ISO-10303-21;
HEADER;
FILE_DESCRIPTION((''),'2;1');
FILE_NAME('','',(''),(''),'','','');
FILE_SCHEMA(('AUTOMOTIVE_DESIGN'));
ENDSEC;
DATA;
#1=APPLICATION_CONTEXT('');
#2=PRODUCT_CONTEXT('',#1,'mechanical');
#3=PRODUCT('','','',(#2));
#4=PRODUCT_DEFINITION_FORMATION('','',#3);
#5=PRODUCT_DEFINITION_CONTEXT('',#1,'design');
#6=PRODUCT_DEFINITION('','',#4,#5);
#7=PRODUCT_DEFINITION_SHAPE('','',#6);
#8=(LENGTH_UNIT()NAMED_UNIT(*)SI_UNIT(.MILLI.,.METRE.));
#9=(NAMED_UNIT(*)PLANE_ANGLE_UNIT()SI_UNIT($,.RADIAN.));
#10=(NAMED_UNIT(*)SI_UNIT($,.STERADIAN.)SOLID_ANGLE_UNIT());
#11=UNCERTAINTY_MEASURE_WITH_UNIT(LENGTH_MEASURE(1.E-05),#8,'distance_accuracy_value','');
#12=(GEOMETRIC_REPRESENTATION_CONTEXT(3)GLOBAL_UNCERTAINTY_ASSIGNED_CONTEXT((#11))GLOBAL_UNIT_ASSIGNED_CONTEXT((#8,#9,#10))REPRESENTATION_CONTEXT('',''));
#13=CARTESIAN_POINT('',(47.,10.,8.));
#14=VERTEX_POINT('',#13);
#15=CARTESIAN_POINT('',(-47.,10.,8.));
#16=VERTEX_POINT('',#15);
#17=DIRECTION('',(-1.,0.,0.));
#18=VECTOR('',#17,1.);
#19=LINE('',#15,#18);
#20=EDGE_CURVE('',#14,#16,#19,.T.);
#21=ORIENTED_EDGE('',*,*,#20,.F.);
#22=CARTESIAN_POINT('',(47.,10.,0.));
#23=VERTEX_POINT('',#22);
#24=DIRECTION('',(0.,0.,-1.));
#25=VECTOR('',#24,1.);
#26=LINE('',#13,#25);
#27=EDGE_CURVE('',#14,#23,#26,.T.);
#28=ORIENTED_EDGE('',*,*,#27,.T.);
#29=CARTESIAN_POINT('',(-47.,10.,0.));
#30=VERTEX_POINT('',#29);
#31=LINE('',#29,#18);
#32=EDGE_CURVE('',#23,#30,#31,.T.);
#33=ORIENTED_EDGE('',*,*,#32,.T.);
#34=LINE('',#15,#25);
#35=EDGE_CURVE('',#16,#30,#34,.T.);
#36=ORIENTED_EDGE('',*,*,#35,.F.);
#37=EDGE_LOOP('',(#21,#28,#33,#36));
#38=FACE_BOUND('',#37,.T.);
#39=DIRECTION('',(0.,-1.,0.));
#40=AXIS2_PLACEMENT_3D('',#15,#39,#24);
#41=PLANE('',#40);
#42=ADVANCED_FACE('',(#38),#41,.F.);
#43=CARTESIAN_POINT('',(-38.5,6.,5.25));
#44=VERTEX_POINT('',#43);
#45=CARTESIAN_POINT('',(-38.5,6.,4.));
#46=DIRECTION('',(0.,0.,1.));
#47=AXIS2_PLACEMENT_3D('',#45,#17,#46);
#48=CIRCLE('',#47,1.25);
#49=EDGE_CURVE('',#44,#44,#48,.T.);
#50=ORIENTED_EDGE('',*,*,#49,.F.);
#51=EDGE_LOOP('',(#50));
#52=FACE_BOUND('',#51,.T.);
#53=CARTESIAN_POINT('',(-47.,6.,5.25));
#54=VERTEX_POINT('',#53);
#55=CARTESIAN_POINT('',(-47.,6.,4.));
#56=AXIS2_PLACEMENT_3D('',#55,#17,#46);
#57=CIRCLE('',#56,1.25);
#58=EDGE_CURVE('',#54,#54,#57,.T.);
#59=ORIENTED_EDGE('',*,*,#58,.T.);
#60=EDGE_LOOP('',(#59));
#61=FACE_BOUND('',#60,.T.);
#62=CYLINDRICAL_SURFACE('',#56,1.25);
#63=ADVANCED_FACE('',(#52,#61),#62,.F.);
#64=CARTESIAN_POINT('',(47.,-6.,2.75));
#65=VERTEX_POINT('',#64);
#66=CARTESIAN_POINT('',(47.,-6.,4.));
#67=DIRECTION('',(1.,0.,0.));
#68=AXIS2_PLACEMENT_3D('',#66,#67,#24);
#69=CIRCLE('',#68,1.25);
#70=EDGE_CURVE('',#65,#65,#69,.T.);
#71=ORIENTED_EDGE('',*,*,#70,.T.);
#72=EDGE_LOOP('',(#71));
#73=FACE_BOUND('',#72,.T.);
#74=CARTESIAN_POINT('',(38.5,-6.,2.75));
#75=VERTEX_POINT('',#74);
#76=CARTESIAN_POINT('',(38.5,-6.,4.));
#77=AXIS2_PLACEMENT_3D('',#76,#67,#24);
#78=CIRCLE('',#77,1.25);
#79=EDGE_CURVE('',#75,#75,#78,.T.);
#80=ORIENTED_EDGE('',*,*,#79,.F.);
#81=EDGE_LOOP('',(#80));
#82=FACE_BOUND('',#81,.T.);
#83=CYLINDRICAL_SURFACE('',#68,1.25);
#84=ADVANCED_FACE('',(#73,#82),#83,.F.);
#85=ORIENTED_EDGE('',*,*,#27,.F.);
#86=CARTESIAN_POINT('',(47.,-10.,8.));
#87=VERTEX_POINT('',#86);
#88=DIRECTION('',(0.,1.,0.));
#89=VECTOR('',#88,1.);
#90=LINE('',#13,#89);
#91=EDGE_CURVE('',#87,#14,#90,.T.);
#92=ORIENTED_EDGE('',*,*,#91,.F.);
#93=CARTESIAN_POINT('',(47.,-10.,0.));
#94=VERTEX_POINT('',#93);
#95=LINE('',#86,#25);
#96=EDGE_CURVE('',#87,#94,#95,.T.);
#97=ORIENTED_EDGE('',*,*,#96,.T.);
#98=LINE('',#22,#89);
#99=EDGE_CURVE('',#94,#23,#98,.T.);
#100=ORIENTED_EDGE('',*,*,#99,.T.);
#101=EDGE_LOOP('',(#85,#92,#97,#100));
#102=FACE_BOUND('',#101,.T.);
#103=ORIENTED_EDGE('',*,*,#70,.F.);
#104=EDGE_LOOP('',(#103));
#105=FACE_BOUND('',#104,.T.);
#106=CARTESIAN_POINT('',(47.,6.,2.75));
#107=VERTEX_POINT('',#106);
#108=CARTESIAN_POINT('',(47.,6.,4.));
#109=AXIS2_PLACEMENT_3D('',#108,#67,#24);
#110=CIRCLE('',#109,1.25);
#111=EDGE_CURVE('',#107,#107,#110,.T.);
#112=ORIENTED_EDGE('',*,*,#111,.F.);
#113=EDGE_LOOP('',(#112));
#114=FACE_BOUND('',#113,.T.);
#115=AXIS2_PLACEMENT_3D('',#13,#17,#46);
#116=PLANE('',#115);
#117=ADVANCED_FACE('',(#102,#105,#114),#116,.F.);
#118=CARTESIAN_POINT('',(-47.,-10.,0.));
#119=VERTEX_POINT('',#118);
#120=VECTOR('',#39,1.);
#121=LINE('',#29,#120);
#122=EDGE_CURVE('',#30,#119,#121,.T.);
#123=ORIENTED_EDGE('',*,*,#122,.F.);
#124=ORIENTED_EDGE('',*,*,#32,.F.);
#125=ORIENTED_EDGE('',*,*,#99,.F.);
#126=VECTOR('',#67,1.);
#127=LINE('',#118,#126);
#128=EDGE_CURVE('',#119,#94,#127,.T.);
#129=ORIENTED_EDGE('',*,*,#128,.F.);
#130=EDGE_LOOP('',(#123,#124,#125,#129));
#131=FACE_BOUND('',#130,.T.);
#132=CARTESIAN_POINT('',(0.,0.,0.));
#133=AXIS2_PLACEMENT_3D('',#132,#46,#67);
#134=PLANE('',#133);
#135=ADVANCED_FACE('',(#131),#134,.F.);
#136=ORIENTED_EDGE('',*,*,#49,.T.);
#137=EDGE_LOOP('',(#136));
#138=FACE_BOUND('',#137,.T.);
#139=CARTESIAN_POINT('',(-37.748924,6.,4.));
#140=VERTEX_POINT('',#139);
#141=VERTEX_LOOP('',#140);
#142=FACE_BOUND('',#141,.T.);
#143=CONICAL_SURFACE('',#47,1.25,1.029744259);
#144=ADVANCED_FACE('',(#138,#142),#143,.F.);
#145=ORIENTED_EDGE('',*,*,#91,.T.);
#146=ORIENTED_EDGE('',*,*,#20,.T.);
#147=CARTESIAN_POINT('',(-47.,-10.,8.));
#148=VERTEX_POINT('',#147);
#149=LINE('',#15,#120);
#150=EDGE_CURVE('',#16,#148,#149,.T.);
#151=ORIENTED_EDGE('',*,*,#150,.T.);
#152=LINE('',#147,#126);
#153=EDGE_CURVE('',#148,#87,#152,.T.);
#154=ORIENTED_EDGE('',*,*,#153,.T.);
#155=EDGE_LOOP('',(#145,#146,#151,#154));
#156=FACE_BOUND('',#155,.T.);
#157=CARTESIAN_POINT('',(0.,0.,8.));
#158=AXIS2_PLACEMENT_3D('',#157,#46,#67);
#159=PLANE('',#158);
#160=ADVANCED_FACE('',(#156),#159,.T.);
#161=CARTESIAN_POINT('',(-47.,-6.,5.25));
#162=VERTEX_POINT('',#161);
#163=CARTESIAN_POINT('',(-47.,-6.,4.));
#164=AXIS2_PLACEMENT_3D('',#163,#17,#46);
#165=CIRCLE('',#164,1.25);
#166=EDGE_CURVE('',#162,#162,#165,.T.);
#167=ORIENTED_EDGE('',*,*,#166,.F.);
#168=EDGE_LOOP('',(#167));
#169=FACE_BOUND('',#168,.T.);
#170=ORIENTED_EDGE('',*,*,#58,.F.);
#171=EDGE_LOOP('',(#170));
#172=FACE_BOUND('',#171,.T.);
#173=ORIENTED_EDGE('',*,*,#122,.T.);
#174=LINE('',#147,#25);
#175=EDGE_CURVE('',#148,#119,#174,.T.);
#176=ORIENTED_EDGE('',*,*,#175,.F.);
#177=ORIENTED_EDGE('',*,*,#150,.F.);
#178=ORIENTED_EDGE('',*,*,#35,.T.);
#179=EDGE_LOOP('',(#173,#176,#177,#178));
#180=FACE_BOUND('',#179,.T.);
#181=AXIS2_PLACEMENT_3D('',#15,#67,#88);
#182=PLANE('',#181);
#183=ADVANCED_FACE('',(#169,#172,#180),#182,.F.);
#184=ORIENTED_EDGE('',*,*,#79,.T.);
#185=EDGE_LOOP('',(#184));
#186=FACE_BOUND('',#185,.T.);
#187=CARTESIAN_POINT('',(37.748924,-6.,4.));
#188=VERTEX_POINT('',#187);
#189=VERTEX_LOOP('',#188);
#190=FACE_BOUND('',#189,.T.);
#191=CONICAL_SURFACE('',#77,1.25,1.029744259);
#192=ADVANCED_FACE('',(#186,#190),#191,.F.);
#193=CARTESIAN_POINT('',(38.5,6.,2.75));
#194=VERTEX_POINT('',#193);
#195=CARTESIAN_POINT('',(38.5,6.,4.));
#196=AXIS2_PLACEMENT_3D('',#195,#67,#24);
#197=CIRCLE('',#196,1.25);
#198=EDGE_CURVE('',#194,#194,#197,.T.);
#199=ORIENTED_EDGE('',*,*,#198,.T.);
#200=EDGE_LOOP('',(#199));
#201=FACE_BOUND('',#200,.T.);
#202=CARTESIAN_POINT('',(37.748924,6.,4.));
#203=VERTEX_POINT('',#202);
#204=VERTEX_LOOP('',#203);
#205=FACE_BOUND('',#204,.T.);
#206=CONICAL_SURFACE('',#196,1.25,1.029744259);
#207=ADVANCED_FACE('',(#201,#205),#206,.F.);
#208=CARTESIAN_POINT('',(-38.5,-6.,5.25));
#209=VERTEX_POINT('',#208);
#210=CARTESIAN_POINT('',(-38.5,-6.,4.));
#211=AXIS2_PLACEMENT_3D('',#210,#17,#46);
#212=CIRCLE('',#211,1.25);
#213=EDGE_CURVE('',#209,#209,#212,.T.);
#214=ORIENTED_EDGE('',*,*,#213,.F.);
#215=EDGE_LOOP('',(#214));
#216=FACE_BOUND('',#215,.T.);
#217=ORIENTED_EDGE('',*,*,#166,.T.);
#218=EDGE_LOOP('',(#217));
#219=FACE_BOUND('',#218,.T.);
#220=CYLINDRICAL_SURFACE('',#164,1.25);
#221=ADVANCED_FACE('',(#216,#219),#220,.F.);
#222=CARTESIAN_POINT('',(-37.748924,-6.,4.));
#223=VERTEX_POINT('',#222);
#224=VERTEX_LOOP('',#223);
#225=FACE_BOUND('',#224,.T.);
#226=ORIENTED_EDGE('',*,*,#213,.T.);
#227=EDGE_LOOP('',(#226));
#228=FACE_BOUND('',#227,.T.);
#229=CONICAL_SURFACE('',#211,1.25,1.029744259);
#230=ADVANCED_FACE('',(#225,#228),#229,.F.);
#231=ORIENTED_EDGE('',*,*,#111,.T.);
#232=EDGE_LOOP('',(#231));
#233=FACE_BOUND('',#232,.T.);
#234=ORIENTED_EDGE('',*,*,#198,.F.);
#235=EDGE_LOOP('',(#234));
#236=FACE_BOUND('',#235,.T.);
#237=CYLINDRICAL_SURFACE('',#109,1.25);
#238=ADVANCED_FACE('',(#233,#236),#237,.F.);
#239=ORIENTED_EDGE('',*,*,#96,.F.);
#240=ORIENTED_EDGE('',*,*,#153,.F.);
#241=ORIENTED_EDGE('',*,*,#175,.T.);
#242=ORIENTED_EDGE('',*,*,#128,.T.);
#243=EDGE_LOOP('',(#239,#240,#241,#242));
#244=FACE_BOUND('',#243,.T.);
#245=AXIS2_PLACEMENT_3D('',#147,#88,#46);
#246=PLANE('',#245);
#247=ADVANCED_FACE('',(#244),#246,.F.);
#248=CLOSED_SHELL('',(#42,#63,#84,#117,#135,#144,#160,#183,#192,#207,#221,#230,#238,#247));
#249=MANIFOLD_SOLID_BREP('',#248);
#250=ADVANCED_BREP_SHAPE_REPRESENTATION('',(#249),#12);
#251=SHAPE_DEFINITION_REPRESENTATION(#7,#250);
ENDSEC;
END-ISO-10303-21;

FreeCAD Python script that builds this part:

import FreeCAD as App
import Part
import Sketcher

V = App.Vector
Q = App.Units.Quantity

doc = App.newDocument("Part")
body = doc.addObject("PartDesign::Body", "Body")

# Sketch on XY plane
sketch1 = doc.addObject("Sketcher::SketchObject", "Sketch")
body.addObject(sketch1)
sketch1.AttachmentSupport = (doc.XY_Plane, [""])
sketch1.MapMode = "FlatFace"
sketch1.addGeometry([
    Part.LineSegment(V(-47, 10, 0), V(-47, -10, 0)),
    Part.LineSegment(V(-47, -10, 0), V(47, -10, 0)),
    Part.LineSegment(V(47, -10, 0), V(47, 10, 0)),
    Part.LineSegment(V(47, 10, 0), V(-47, 10, 0)),
], False)
sketch1.addConstraint([
    Sketcher.Constraint("Coincident", 0, 2, 1, 1),
    Sketcher.Constraint("Coincident", 1, 2, 2, 1),
    Sketcher.Constraint("Coincident", 2, 2, 3, 1),
    Sketcher.Constraint("Coincident", 3, 2, 0, 1),
    Sketcher.Constraint("Vertical", 0),
    Sketcher.Constraint("Horizontal", 1),
    Sketcher.Constraint("Vertical", 2),
    Sketcher.Constraint("Horizontal", 3),
    Sketcher.Constraint("Symmetric", 0, 2, 2, 2, -1, 1),
    Sketcher.Constraint("DistanceX", 1, 1, 1, 2, 94.0),
    Sketcher.Constraint("DistanceY", 0, 2, 0, 1, 20.0),
])
pad1 = doc.addObject("PartDesign::Pad", "Pad")
body.addObject(pad1)
pad1.Profile = sketch1
pad1.Length = 8

# Sketch on XZ plane
sketch2 = doc.addObject("Sketcher::SketchObject", "Sketch001")
body.addObject(sketch2)
sketch2.AttachmentSupport = (doc.XZ_Plane, [""])
sketch2.MapMode = "FlatFace"
sketch2.AttachmentOffset = App.Placement(V(0, 0, -6), App.Rotation())
sketch2.addGeometry([
    Part.LineSegment(V(37.7, 4, 0), V(47, 4, 0)),
    Part.LineSegment(V(47, 4, 0), V(47, 2.8, 0)),
    Part.LineSegment(V(47, 2.8, 0), V(38.5, 2.8, 0)),
    Part.LineSegment(V(38.5, 2.8, 0), V(37.7, 4, 0)),
], False)
sketch2.addGeometry(Part.LineSegment(V(47, 4, 0), V(37.7, 4, 0)), True)  # axis
sketch2.addConstraint([
    Sketcher.Constraint("Coincident", 0, 2, 1, 1),
    Sketcher.Constraint("Coincident", 1, 2, 2, 1),
    Sketcher.Constraint("Coincident", 2, 2, 3, 1),
    Sketcher.Constraint("Coincident", 3, 2, 0, 1),
    Sketcher.Constraint("Horizontal", 0),
    Sketcher.Constraint("Vertical", 1),
    Sketcher.Constraint("Horizontal", 2),
    Sketcher.Constraint("Horizontal", 4),
    Sketcher.Constraint("Coincident", 4, 1, 0, 2),
    Sketcher.Constraint("Equal", 0, 4),
    Sketcher.Constraint("Angle", 3, Q("121 deg")),
    Sketcher.Constraint("DistanceX", 2, 2, 2, 1, 8.5),
    Sketcher.Constraint("DistanceX", -1, 1, 0, 2, 47.0),
    Sketcher.Constraint("DistanceY", -1, 1, 0, 2, 4.0),
    Sketcher.Constraint("DistanceY", 1, 2, 1, 1, 1.25),
])
groove = doc.addObject("PartDesign::Groove", "Groove")
body.addObject(groove)
groove.Profile = sketch2
groove.ReferenceAxis = (sketch2, ["Axis0"])
groove.Angle = 360
doc.recompute()

linearpattern = doc.addObject("PartDesign::LinearPattern", "LinearPattern")
body.addObject(linearpattern)
linearpattern.Originals = [groove]
linearpattern.Direction = (doc.Y_Axis, [""])
linearpattern.Mode = "offset"
linearpattern.Offset = 12
linearpattern.Occurrences = 2
linearpattern.Reversed = True
body.Tip = linearpattern
doc.recompute()

mirrored = doc.addObject("PartDesign::Mirrored", "Mirrored")
body.addObject(mirrored)
mirrored.Originals = [groove]
mirrored.MirrorPlane = (doc.YZ_Plane, [""])
body.Tip = mirrored

# Sketch on XZ plane
sketch3 = doc.addObject("Sketcher::SketchObject", "Sketch002")
body.addObject(sketch3)
sketch3.AttachmentSupport = (doc.XZ_Plane, [""])
sketch3.MapMode = "FlatFace"
sketch3.AttachmentOffset = App.Placement(V(0, 0, 6), App.Rotation())
sketch3.addGeometry([
    Part.LineSegment(V(-47, 4, 0), V(-37.7, 4, 0)),
    Part.LineSegment(V(-37.7, 4, 0), V(-38.5, 2.8, 0)),
    Part.LineSegment(V(-38.5, 2.8, 0), V(-47, 2.8, 0)),
    Part.LineSegment(V(-47, 2.8, 0), V(-47, 4, 0)),
], False)
sketch3.addGeometry(Part.LineSegment(V(-37.7, 4, 0), V(-47, 4, 0)), True)  # axis
sketch3.addConstraint([
    Sketcher.Constraint("Coincident", 0, 2, 1, 1),
    Sketcher.Constraint("Coincident", 1, 2, 2, 1),
    Sketcher.Constraint("Coincident", 2, 2, 3, 1),
    Sketcher.Constraint("Coincident", 3, 2, 0, 1),
    Sketcher.Constraint("Horizontal", 0),
    Sketcher.Constraint("Horizontal", 2),
    Sketcher.Constraint("Vertical", 3),
    Sketcher.Constraint("Horizontal", 4),
    Sketcher.Constraint("Coincident", 4, 1, 0, 2),
    Sketcher.Constraint("Vertical", 2, 2, 4, 2),
    Sketcher.Constraint("Angle", 1, Q("-121 deg")),
    Sketcher.Constraint("DistanceX", 2, 2, 2, 1, 8.5),
    Sketcher.Constraint("DistanceY", -1, 1, 0, 2, 4.0),
    Sketcher.Constraint("DistanceX", 2, 2, -1, 1, 47.0),
    Sketcher.Constraint("DistanceY", 3, 1, 3, 2, 1.25),
])
groove2 = doc.addObject("PartDesign::Groove", "Groove001")
body.addObject(groove2)
groove2.Profile = sketch3
groove2.ReferenceAxis = (sketch3, ["Axis0"])
groove2.Angle = 360

doc.recompute()
